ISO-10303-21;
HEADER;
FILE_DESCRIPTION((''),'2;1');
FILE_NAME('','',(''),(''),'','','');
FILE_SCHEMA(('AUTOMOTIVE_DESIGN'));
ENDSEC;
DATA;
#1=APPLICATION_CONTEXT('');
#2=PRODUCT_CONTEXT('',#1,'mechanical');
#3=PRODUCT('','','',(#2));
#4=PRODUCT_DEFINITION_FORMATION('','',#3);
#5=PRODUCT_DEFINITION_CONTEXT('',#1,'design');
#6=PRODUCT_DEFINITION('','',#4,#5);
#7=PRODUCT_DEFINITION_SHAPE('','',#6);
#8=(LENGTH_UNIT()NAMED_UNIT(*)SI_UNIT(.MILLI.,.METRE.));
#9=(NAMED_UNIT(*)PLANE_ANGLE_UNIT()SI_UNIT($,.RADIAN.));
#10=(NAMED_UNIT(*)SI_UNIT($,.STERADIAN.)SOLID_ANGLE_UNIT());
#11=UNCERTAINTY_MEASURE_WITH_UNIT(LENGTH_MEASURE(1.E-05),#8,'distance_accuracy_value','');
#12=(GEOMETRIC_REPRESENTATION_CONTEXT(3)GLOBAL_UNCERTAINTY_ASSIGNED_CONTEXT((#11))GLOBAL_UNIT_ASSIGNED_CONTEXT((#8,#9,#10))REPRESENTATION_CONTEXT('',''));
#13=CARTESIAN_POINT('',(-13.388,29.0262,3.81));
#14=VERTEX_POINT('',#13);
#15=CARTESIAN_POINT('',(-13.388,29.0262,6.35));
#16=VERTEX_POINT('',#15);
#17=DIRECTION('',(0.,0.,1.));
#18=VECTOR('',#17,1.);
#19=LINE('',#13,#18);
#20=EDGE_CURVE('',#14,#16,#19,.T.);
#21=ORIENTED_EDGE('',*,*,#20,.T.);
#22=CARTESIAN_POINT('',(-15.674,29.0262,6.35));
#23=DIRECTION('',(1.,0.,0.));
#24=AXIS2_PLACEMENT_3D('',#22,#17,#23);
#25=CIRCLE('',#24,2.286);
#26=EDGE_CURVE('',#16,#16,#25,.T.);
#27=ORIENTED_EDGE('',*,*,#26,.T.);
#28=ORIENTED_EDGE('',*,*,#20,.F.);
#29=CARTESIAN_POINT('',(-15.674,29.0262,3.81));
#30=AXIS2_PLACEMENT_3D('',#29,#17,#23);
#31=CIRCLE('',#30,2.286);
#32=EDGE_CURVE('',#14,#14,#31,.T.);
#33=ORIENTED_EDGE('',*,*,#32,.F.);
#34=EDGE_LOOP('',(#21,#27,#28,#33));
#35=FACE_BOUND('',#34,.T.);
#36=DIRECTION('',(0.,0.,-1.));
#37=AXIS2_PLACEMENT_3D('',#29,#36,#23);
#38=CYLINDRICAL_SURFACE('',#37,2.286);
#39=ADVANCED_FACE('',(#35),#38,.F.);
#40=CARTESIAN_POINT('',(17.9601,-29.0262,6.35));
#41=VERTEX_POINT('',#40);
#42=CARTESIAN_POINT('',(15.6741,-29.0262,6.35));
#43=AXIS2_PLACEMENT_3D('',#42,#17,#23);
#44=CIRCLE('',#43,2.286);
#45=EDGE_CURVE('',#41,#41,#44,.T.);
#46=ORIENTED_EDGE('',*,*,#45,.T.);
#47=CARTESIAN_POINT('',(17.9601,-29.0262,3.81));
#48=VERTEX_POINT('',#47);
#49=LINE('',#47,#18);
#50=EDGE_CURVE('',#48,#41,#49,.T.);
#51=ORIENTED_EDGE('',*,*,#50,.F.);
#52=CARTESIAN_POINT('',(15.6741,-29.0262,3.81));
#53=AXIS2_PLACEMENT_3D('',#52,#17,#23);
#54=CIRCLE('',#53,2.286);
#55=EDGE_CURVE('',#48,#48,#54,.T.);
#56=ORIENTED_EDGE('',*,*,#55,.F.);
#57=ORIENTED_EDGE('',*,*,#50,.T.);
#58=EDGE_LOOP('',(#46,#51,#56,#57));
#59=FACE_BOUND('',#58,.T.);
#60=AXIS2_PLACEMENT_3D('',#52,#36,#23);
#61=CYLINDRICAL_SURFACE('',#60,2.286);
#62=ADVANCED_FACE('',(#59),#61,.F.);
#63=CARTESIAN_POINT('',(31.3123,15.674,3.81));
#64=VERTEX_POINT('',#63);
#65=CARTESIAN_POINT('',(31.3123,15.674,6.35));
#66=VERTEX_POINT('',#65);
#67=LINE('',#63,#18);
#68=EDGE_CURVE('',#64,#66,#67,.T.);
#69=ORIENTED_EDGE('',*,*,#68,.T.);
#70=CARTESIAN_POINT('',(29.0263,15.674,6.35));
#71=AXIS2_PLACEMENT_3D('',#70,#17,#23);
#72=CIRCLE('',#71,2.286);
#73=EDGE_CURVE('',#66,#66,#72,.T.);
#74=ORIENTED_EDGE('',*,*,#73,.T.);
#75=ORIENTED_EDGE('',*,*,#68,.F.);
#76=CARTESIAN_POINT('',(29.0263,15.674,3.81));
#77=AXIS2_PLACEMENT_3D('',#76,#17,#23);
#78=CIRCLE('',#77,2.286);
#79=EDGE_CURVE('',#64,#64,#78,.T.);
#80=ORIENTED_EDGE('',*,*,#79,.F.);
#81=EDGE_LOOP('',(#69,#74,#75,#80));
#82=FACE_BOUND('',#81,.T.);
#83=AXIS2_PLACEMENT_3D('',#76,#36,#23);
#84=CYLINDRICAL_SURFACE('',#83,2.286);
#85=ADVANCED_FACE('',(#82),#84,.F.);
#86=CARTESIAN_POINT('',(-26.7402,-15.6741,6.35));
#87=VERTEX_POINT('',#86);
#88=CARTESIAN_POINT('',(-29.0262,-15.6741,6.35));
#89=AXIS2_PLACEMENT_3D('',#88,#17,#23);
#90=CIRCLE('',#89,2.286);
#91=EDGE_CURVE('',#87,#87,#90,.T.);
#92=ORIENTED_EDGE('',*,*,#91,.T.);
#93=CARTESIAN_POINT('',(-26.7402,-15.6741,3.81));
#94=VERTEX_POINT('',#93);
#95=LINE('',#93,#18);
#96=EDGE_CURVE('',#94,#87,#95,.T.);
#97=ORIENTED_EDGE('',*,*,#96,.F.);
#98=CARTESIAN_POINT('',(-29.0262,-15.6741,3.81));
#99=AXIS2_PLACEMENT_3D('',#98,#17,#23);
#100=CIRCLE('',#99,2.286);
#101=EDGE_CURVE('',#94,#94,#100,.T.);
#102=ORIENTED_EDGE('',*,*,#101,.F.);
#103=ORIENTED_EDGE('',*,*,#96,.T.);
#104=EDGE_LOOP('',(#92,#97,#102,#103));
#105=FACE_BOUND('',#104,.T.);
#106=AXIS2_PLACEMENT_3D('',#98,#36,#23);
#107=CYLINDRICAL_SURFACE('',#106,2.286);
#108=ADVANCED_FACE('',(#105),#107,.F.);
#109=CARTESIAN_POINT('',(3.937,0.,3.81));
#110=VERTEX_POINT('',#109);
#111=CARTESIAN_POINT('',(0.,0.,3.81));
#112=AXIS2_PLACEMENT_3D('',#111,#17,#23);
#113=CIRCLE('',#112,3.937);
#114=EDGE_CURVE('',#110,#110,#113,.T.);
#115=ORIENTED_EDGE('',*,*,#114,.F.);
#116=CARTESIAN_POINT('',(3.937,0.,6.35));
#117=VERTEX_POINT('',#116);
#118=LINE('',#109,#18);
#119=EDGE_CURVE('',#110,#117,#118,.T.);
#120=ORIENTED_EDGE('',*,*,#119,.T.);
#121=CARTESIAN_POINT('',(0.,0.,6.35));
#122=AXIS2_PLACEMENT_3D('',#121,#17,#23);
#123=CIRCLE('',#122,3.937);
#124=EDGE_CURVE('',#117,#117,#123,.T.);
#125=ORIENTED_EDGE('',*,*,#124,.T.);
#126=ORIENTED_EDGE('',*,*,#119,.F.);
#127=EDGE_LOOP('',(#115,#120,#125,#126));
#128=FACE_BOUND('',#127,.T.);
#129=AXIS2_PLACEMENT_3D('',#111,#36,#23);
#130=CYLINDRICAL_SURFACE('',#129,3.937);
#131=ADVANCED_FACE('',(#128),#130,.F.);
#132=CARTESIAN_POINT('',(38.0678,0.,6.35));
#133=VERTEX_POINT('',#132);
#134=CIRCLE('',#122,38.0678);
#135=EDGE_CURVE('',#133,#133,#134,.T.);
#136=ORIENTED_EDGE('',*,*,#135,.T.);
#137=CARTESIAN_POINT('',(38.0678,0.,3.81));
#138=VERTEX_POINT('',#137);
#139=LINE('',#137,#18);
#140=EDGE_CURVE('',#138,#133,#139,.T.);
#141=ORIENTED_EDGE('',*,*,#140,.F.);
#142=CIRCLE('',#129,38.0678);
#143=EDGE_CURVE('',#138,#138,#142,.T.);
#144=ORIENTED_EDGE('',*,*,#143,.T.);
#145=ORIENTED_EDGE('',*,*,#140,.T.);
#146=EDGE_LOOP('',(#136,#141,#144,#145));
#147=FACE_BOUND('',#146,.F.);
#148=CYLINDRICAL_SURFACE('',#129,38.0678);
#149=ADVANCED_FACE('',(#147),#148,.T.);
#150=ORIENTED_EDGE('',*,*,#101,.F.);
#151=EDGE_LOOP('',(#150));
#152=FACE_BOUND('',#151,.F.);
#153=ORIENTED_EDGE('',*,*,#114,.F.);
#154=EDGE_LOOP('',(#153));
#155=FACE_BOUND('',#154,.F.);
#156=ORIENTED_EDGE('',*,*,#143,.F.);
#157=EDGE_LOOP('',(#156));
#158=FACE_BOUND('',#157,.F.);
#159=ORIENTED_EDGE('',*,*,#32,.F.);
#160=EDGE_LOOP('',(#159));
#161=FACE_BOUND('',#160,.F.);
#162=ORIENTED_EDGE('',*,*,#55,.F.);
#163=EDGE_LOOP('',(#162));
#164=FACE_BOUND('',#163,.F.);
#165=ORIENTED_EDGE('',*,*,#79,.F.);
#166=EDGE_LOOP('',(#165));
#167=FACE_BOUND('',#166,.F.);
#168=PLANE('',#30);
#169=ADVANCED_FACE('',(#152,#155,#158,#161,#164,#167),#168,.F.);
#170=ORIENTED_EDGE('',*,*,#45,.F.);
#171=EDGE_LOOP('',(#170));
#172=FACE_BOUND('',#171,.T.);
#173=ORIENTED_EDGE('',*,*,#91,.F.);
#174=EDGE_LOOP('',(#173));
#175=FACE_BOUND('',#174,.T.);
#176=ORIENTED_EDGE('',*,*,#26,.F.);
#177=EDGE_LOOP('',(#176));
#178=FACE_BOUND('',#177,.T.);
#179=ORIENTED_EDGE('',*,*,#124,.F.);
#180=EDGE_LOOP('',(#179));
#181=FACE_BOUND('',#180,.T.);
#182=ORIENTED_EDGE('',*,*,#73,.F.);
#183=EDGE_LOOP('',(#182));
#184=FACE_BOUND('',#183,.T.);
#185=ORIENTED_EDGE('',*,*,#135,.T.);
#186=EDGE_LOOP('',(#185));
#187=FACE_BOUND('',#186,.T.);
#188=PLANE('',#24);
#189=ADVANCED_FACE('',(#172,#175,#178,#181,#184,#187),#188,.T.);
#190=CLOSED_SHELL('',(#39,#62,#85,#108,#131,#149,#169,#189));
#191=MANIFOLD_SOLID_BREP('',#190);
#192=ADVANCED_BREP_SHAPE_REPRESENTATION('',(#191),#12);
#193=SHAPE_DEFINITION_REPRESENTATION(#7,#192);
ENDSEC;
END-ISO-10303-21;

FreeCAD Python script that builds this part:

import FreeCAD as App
import Part
import Sketcher
Q = App.Units.Quantity

doc = App.newDocument("Part")
body = doc.addObject("PartDesign::Body", "Body")

# Sketch on XY plane
sketch1 = body.newObject("Sketcher::SketchObject", "Sketch")
sketch1.AttachmentSupport = (doc.getObject("XY_Plane"), [""])
sketch1.MapMode = "FlatFace"
sketch1.AttachmentOffset = App.Placement(App.Vector(0, 0, 0.15 * 25.4), App.Rotation())
sketch1.addGeometry(Part.Circle(App.Vector(0, 0, 0), App.Vector(0, 0, 1), 38.0678), False)
sketch1.addGeometry(Part.Circle(App.Vector(-15.674, 29.0262, 0), App.Vector(0, 0, 1), 2.286), False)
sketch1.addGeometry(Part.Circle(App.Vector(0, 0, 0), App.Vector(0, 0, 1), 3.937), False)
sketch1.addGeometry(Part.Circle(App.Vector(-29.0262, -15.6741, 0), App.Vector(0, 0, 1), 2.286), False)
sketch1.addGeometry(Part.Circle(App.Vector(15.6741, -29.0262, 0), App.Vector(0, 0, 1), 2.286), False)
sketch1.addGeometry(Part.Circle(App.Vector(29.0263, 15.674, 0), App.Vector(0, 0, 1), 2.286), False)
sketch1.addConstraint(Sketcher.Constraint("Coincident", 0, 3, -1, 1))
sketch1.addConstraint(Sketcher.Constraint("Coincident", 2, 3, -1, 1))
sketch1.addConstraint(Sketcher.Constraint("Equal", 1, 3))
sketch1.addConstraint(Sketcher.Constraint("Equal", 3, 4))
sketch1.addConstraint(Sketcher.Constraint("Equal", 4, 5))
sketch1.addConstraint(Sketcher.Constraint("Symmetric", 1, 3, 4, 3, -1, 1))
sketch1.addConstraint(Sketcher.Constraint("Symmetric", 3, 3, 5, 3, -1, 1))
sketch1.addConstraint(Sketcher.Constraint("Diameter", 2, Q("0.31 in")))
sketch1.addConstraint(Sketcher.Constraint("Diameter", 1, Q("0.18 in")))
sketch1.addConstraint(Sketcher.Constraint("Diameter", 0, Q("76.1356 mm")))
sketch1.addConstraint(Sketcher.Constraint("DistanceY", 3, 3, -1, 1, Q("0.6171 in")))
sketch1.addConstraint(Sketcher.Constraint("DistanceX", -1, 1, 4, 3, Q("0.6171 in")))
sketch1.addConstraint(Sketcher.Constraint("DistanceY", -1, 1, 1, 3, Q("29.0262 mm")))
sketch1.addConstraint(Sketcher.Constraint("DistanceX", 3, 3, -1, 1, Q("29.0262 mm")))
pad1 = body.newObject("PartDesign::Pad", "Pad")
pad1.Profile = sketch1
pad1.Length = Q("0.1 in")

doc.recompute()
